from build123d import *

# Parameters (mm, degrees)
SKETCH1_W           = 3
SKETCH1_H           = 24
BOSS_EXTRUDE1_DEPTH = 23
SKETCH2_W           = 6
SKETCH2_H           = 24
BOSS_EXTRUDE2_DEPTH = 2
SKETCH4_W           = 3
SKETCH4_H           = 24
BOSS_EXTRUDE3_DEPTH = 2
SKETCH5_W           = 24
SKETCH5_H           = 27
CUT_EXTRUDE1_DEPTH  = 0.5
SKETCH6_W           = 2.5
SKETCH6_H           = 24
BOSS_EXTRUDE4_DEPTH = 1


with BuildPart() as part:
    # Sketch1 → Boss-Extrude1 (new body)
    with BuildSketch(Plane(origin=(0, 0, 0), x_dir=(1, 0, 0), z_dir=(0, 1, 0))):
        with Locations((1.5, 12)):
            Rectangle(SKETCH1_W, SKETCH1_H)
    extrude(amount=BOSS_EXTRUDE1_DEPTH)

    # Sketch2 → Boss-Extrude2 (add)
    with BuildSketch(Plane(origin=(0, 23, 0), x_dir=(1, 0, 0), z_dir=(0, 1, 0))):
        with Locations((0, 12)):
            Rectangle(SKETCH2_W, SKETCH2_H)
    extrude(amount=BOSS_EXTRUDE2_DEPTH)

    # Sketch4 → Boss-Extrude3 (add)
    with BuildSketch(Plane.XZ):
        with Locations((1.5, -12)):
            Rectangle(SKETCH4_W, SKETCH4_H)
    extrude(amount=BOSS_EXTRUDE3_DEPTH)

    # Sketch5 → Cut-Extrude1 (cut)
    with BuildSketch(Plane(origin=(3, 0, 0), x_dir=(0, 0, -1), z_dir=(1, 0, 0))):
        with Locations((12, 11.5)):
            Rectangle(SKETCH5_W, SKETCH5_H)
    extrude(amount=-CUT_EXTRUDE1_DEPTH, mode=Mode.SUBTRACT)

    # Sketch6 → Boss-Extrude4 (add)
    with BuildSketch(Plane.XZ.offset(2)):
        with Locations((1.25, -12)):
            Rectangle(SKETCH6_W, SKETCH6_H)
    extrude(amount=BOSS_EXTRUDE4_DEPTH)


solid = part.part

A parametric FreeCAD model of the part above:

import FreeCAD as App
import Part
import Sketcher


def add_polygon(sketch, points):
    """Adds a closed chain of lines whose ends are joined by coincident constraints."""
    first, n = sketch.GeometryCount, len(points)
    for a, b in zip(points, points[1:] + points[:1]):
        sketch.addGeometry(Part.LineSegment(App.Vector(*a, 0), App.Vector(*b, 0)), False)
    for i in range(n):
        sketch.addConstraint(Sketcher.Constraint("Coincident", first + i, 2, first + (i + 1) % n, 1))

doc = App.newDocument("Part")
body = doc.addObject("PartDesign::Body", "Body")

# Sketch on XZ plane
sketch1 = doc.addObject("Sketcher::SketchObject", "Sketch")
body.addObject(sketch1)
sketch1.AttachmentSupport = (doc.XZ_Plane, [""])
sketch1.MapMode = "FlatFace"
add_polygon(sketch1, [(0, -24), (0, 0), (3, 0), (3, -24)])  # lines 0-3
sketch1.addConstraint([
    Sketcher.Constraint("Vertical", 0),
    Sketcher.Constraint("Horizontal", 1),
    Sketcher.Constraint("Vertical", 2),
    Sketcher.Constraint("Horizontal", 3),
    Sketcher.Constraint("Coincident", 0, 2, -1, 1),
    Sketcher.Constraint("DistanceX", 1, 1, 1, 2, 3.0),
    Sketcher.Constraint("DistanceY", 0, 1, 0, 2, 24.0),
])
pad1 = doc.addObject("PartDesign::Pad", "Pad")
body.addObject(pad1)
pad1.Profile = sketch1
pad1.Length = 23
pad1.Reversed = True

# Sketch on XZ plane
sketch2 = doc.addObject("Sketcher::SketchObject", "Sketch001")
body.addObject(sketch2)
sketch2.AttachmentSupport = (doc.XZ_Plane, [""])
sketch2.MapMode = "FlatFace"
sketch2.AttachmentOffset = App.Placement(App.Vector(0, 0, -23), App.Rotation())
add_polygon(sketch2, [(-3, -24), (-3, 0), (3, 0), (3, -24)])  # lines 0-3
sketch2.addConstraint([
    Sketcher.Constraint("Vertical", 0),
    Sketcher.Constraint("Horizontal", 1),
    Sketcher.Constraint("Vertical", 2),
    Sketcher.Constraint("Horizontal", 3),
    Sketcher.Constraint("Symmetric", 0, 2, 1, 2, -1, 1),
    Sketcher.Constraint("DistanceX", 1, 1, 1, 2, 6.0),
    Sketcher.Constraint("DistanceY", 0, 1, 0, 2, 24.0),
])
pad2 = doc.addObject("PartDesign::Pad", "Pad001")
body.addObject(pad2)
pad2.Profile = sketch2
pad2.Length = 2
pad2.Reversed = True

# Sketch on XZ plane
sketch3 = doc.addObject("Sketcher::SketchObject", "Sketch002")
body.addObject(sketch3)
sketch3.AttachmentSupport = (doc.XZ_Plane, [""])
sketch3.MapMode = "FlatFace"
add_polygon(sketch3, [(0, 0), (0, -24), (3, -24), (3, 0)])  # lines 0-3
sketch3.addConstraint([
    Sketcher.Constraint("Vertical", 0),
    Sketcher.Constraint("Horizontal", 1),
    Sketcher.Constraint("Vertical", 2),
    Sketcher.Constraint("Horizontal", 3),
    Sketcher.Constraint("Coincident", 3, 2, -1, 1),
    Sketcher.Constraint("DistanceX", 1, 1, 1, 2, 3.0),
    Sketcher.Constraint("DistanceY", 0, 2, 0, 1, 24.0),
])
pad3 = doc.addObject("PartDesign::Pad", "Pad002")
body.addObject(pad3)
pad3.Profile = sketch3
pad3.Length = 2

# Sketch on YZ plane
sketch4 = doc.addObject("Sketcher::SketchObject", "Sketch003")
body.addObject(sketch4)
sketch4.AttachmentSupport = (doc.YZ_Plane, [""])
sketch4.MapMode = "FlatFace"
sketch4.AttachmentOffset = App.Placement(App.Vector(0, 0, 3), App.Rotation())
add_polygon(sketch4, [(25, 0), (-2, 0), (-2, -24), (25, -24)])  # lines 0-3
sketch4.addConstraint([
    Sketcher.Constraint("Horizontal", 0),
    Sketcher.Constraint("Vertical", 1),
    Sketcher.Constraint("Horizontal", 2),
    Sketcher.Constraint("Vertical", 3),
    Sketcher.Constraint("PointOnObject", 0, 2, -1),
    Sketcher.Constraint("DistanceX", 0, 2, 0, 1, 27.0),
    Sketcher.Constraint("DistanceY", 1, 2, 1, 1, 24.0),
    Sketcher.Constraint("DistanceX", 0, 2, -1, 1, 2.0),
])
pocket1 = doc.addObject("PartDesign::Pocket", "Pocket")
body.addObject(pocket1)
pocket1.Profile = sketch4
pocket1.Length = 0.5

# Sketch on XZ plane
sketch5 = doc.addObject("Sketcher::SketchObject", "Sketch004")
body.addObject(sketch5)
sketch5.AttachmentSupport = (doc.XZ_Plane, [""])
sketch5.MapMode = "FlatFace"
sketch5.AttachmentOffset = App.Placement(App.Vector(0, 0, 2), App.Rotation())
add_polygon(sketch5, [(0, 0), (0, -24), (2.5, -24), (2.5, 0)])  # lines 0-3
sketch5.addConstraint([
    Sketcher.Constraint("Vertical", 0),
    Sketcher.Constraint("Horizontal", 1),
    Sketcher.Constraint("Vertical", 2),
    Sketcher.Constraint("Horizontal", 3),
    Sketcher.Constraint("Coincident", 3, 2, -1, 1),
    Sketcher.Constraint("DistanceY", 0, 2, 0, 1, 24.0),
    Sketcher.Constraint("DistanceX", 1, 1, 1, 2, 2.5),
])
pad4 = doc.addObject("PartDesign::Pad", "Pad003")
body.addObject(pad4)
pad4.Profile = sketch5
pad4.Length = 1

doc.recompute()
